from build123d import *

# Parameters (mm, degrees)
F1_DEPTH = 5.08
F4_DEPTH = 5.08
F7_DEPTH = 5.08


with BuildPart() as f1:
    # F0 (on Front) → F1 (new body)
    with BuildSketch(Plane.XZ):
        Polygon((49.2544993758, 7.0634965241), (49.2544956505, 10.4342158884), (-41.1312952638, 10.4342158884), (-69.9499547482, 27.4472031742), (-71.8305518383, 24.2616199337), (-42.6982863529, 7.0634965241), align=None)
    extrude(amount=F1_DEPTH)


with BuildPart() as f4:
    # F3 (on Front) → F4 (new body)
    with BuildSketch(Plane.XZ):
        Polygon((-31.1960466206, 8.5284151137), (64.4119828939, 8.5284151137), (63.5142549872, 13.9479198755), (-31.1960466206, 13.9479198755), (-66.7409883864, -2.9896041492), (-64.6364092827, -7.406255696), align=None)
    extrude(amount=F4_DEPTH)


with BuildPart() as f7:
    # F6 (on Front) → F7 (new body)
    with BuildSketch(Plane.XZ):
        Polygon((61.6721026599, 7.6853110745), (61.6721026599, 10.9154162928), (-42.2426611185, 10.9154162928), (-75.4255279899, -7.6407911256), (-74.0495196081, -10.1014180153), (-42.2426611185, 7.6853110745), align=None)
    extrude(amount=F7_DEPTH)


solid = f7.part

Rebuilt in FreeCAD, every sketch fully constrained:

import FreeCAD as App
import Part
import Sketcher
Q = App.Units.Quantity


def add_polygon(sketch, points):
    """Adds a closed chain of lines whose ends are joined by coincident constraints."""
    first, n = sketch.GeometryCount, len(points)
    for a, b in zip(points, points[1:] + points[:1]):
        sketch.addGeometry(Part.LineSegment(App.Vector(*a, 0), App.Vector(*b, 0)), False)
    for i in range(n):
        sketch.addConstraint(Sketcher.Constraint("Coincident", first + i, 2, first + (i + 1) % n, 1))

doc = App.newDocument("Part")
params = doc.addObject("Spreadsheet::Sheet", "Params")
for row, (alias, value) in enumerate([
    ("pad1_length", "0.2 in"),
    ("pad2_length", "0.2 in"),
    ("pad3_length", "0.2 in"),
], start=1):
    params.set(f"A{row}", alias)
    params.set(f"B{row}", "=" + value)
    params.setAlias(f"B{row}", alias)

body = doc.addObject("PartDesign::Body", "Body")

sketch1 = body.newObject("Sketcher::SketchObject", "Sketch")
sketch1.AttachmentSupport = (doc.getObject("XZ_Plane"), [""])
sketch1.MapMode = "FlatFace"
add_polygon(sketch1, [(49.3, 7.1), (49.3, 10.4), (-41.1, 10.4), (-69.9, 27.4), (-71.8, 24.3), (-42.7, 7.1)])
sketch1.addConstraint([
    Sketcher.Constraint("Horizontal", 1),
    Sketcher.Constraint("Horizontal", 5),
    Sketcher.Constraint("Perpendicular", 2, 3),
    Sketcher.Constraint("Perpendicular", 3, 4),
    Sketcher.Constraint("DistanceX", 1, 2, 1, 1, Q("90.385791 mm")),
    Sketcher.Constraint("DistanceX", -1, 1, 5, 2, Q("49.254499 mm")),
    Sketcher.Constraint("Distance", 0, Q("3.370719 mm")),
    Sketcher.Constraint("Distance", 3, Q("3.699268 mm")),
    Sketcher.Constraint("DistanceX", 5, 1, 5, 2, Q("91.952786 mm")),
    Sketcher.Constraint("DistanceX", 3, 2, -1, 1, Q("71.830552 mm")),
    Sketcher.Constraint("DistanceY", -1, 1, 3, 2, Q("24.26162 mm")),
    Sketcher.Constraint("DistanceX", 2, 2, 1, 2, Q("28.818659 mm")),
])
pad1 = body.newObject("PartDesign::Pad", "Pad")
pad1.Profile = sketch1
pad1.setExpression("Length", "Params.pad1_length")
body2 = doc.addObject("PartDesign::Body", "Body001")

sketch2 = body2.newObject("Sketcher::SketchObject", "Sketch001")
sketch2.AttachmentSupport = (doc.getObject("XZ_Plane001"), [""])
sketch2.MapMode = "FlatFace"
add_polygon(sketch2, [(-31.2, 8.5), (64.4, 8.5), (63.5, 13.9), (-31.2, 13.9), (-66.7, -3), (-64.6, -7.4)])
sketch2.addConstraint([
    Sketcher.Constraint("Horizontal", 0),
    Sketcher.Constraint("Horizontal", 2),
    Sketcher.Constraint("Perpendicular", 3, 4),
    Sketcher.Constraint("Perpendicular", 4, 5),
    Sketcher.Constraint("Vertical", 2, 2, 5, 2),
    Sketcher.Constraint("DistanceX", 2, 2, 2, 1, Q("94.710302 mm")),
    Sketcher.Constraint("DistanceX", 0, 1, 0, 2, Q("95.60803 mm")),
    Sketcher.Constraint("Distance", 4, Q("4.89245 mm")),
    Sketcher.Constraint("DistanceY", -1, 1, 1, 2, Q("13.94792 mm")),
    Sketcher.Constraint("DistanceX", 3, 2, -1, 1, Q("66.740988 mm")),
    Sketcher.Constraint("DistanceX", 4, 2, -1, 1, Q("64.636409 mm")),
    Sketcher.Constraint("DistanceX", 3, 2, 2, 2, Q("35.544942 mm")),
])
pad2 = body2.newObject("PartDesign::Pad", "Pad001")
pad2.Profile = sketch2
pad2.setExpression("Length", "Params.pad2_length")
body3 = doc.addObject("PartDesign::Body", "Body002")

sketch3 = body3.newObject("Sketcher::SketchObject", "Sketch002")
sketch3.AttachmentSupport = (doc.getObject("XZ_Plane002"), [""])
sketch3.MapMode = "FlatFace"
add_polygon(sketch3, [(61.7, 7.7), (61.7, 10.9), (-42.2, 10.9), (-75.4, -7.6), (-74, -10.1), (-42.2, 7.7)])
sketch3.addConstraint([
    Sketcher.Constraint("Vertical", 0),
    Sketcher.Constraint("Horizontal", 1),
    Sketcher.Constraint("Horizontal", 5),
    Sketcher.Constraint("Perpendicular", 2, 3),
    Sketcher.Constraint("Perpendicular", 3, 4),
    Sketcher.Constraint("Vertical", 1, 2, 4, 2),
    Sketcher.Constraint("DistanceX", 1, 2, 1, 1, Q("103.914764 mm")),
    Sketcher.Constraint("DistanceY", 0, 1, 0, 2, Q("3.230105 mm")),
    Sketcher.Constraint("DistanceX", 1, 2, -1, 1, Q("42.242661 mm")),
    Sketcher.Constraint("DistanceY", 2, 2, -1, 1, Q("7.640791 mm")),
    Sketcher.Constraint("DistanceX", 3, 2, -1, 1, Q("74.04952 mm")),
    Sketcher.Constraint("DistanceY", 3, 2, -1, 1, Q("10.101418 mm")),
])
pad3 = body3.newObject("PartDesign::Pad", "Pad002")
pad3.Profile = sketch3
pad3.setExpression("Length", "Params.pad3_length")
body.Visibility = False
body2.Visibility = False

doc.recompute()
